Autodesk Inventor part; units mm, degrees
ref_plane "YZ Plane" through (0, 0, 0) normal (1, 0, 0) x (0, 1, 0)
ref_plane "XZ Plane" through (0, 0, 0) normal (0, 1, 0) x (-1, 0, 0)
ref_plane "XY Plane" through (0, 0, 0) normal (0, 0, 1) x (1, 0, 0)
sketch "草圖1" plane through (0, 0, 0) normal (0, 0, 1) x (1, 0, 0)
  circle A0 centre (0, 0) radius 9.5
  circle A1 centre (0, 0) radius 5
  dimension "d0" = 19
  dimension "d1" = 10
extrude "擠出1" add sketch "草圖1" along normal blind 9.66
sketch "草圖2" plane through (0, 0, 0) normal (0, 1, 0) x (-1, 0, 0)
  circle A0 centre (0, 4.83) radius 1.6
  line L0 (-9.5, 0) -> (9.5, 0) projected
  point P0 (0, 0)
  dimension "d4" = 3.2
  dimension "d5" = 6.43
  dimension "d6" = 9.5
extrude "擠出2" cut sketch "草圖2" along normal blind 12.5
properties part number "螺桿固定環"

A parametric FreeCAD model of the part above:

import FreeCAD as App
import Part
import Sketcher
Q = App.Units.Quantity

doc = App.newDocument("Part")
body = doc.addObject("PartDesign::Body", "Body")

# Sketch on XY plane
sketch1 = body.newObject("Sketcher::SketchObject", "Sketch")
sketch1.AttachmentSupport = (doc.getObject("XY_Plane"), [""])
sketch1.MapMode = "FlatFace"
sketch1.addGeometry(Part.Circle(App.Vector(0, 0, 0), App.Vector(0, 0, 1), 9.5), False)
sketch1.addGeometry(Part.Circle(App.Vector(0, 0, 0), App.Vector(0, 0, 1), 5), False)
sketch1.addConstraint(Sketcher.Constraint("Coincident", 0, 3, -1, 1))
sketch1.addConstraint(Sketcher.Constraint("Coincident", 1, 3, -1, 1))
sketch1.addConstraint(Sketcher.Constraint("Diameter", 0, Q("19 mm")))
sketch1.addConstraint(Sketcher.Constraint("Diameter", 1, Q("10 mm")))
pad1 = body.newObject("PartDesign::Pad", "Pad")
pad1.Profile = sketch1
pad1.Length = 9.66

# Sketch on XZ plane
sketch2 = body.newObject("Sketcher::SketchObject", "Sketch001")
sketch2.AttachmentSupport = (doc.getObject("XZ_Plane"), [""])
sketch2.MapMode = "FlatFace"
sketch2.addGeometry(Part.Circle(App.Vector(0, 4.83, 0), App.Vector(0, 0, 1), 1.6), False)
sketch2.addConstraint(Sketcher.Constraint("PointOnObject", 0, 3, -2))
sketch2.addConstraint(Sketcher.Constraint("Diameter", 0, Q("3.2 mm")))
sketch2.addConstraint(Sketcher.Constraint("DistanceY", -1, 1, 0, 3, Q("4.83 mm")))
pocket1 = body.newObject("PartDesign::Pocket", "Pocket")
pocket1.Profile = sketch2
pocket1.Length = 12.5

doc.recompute()
